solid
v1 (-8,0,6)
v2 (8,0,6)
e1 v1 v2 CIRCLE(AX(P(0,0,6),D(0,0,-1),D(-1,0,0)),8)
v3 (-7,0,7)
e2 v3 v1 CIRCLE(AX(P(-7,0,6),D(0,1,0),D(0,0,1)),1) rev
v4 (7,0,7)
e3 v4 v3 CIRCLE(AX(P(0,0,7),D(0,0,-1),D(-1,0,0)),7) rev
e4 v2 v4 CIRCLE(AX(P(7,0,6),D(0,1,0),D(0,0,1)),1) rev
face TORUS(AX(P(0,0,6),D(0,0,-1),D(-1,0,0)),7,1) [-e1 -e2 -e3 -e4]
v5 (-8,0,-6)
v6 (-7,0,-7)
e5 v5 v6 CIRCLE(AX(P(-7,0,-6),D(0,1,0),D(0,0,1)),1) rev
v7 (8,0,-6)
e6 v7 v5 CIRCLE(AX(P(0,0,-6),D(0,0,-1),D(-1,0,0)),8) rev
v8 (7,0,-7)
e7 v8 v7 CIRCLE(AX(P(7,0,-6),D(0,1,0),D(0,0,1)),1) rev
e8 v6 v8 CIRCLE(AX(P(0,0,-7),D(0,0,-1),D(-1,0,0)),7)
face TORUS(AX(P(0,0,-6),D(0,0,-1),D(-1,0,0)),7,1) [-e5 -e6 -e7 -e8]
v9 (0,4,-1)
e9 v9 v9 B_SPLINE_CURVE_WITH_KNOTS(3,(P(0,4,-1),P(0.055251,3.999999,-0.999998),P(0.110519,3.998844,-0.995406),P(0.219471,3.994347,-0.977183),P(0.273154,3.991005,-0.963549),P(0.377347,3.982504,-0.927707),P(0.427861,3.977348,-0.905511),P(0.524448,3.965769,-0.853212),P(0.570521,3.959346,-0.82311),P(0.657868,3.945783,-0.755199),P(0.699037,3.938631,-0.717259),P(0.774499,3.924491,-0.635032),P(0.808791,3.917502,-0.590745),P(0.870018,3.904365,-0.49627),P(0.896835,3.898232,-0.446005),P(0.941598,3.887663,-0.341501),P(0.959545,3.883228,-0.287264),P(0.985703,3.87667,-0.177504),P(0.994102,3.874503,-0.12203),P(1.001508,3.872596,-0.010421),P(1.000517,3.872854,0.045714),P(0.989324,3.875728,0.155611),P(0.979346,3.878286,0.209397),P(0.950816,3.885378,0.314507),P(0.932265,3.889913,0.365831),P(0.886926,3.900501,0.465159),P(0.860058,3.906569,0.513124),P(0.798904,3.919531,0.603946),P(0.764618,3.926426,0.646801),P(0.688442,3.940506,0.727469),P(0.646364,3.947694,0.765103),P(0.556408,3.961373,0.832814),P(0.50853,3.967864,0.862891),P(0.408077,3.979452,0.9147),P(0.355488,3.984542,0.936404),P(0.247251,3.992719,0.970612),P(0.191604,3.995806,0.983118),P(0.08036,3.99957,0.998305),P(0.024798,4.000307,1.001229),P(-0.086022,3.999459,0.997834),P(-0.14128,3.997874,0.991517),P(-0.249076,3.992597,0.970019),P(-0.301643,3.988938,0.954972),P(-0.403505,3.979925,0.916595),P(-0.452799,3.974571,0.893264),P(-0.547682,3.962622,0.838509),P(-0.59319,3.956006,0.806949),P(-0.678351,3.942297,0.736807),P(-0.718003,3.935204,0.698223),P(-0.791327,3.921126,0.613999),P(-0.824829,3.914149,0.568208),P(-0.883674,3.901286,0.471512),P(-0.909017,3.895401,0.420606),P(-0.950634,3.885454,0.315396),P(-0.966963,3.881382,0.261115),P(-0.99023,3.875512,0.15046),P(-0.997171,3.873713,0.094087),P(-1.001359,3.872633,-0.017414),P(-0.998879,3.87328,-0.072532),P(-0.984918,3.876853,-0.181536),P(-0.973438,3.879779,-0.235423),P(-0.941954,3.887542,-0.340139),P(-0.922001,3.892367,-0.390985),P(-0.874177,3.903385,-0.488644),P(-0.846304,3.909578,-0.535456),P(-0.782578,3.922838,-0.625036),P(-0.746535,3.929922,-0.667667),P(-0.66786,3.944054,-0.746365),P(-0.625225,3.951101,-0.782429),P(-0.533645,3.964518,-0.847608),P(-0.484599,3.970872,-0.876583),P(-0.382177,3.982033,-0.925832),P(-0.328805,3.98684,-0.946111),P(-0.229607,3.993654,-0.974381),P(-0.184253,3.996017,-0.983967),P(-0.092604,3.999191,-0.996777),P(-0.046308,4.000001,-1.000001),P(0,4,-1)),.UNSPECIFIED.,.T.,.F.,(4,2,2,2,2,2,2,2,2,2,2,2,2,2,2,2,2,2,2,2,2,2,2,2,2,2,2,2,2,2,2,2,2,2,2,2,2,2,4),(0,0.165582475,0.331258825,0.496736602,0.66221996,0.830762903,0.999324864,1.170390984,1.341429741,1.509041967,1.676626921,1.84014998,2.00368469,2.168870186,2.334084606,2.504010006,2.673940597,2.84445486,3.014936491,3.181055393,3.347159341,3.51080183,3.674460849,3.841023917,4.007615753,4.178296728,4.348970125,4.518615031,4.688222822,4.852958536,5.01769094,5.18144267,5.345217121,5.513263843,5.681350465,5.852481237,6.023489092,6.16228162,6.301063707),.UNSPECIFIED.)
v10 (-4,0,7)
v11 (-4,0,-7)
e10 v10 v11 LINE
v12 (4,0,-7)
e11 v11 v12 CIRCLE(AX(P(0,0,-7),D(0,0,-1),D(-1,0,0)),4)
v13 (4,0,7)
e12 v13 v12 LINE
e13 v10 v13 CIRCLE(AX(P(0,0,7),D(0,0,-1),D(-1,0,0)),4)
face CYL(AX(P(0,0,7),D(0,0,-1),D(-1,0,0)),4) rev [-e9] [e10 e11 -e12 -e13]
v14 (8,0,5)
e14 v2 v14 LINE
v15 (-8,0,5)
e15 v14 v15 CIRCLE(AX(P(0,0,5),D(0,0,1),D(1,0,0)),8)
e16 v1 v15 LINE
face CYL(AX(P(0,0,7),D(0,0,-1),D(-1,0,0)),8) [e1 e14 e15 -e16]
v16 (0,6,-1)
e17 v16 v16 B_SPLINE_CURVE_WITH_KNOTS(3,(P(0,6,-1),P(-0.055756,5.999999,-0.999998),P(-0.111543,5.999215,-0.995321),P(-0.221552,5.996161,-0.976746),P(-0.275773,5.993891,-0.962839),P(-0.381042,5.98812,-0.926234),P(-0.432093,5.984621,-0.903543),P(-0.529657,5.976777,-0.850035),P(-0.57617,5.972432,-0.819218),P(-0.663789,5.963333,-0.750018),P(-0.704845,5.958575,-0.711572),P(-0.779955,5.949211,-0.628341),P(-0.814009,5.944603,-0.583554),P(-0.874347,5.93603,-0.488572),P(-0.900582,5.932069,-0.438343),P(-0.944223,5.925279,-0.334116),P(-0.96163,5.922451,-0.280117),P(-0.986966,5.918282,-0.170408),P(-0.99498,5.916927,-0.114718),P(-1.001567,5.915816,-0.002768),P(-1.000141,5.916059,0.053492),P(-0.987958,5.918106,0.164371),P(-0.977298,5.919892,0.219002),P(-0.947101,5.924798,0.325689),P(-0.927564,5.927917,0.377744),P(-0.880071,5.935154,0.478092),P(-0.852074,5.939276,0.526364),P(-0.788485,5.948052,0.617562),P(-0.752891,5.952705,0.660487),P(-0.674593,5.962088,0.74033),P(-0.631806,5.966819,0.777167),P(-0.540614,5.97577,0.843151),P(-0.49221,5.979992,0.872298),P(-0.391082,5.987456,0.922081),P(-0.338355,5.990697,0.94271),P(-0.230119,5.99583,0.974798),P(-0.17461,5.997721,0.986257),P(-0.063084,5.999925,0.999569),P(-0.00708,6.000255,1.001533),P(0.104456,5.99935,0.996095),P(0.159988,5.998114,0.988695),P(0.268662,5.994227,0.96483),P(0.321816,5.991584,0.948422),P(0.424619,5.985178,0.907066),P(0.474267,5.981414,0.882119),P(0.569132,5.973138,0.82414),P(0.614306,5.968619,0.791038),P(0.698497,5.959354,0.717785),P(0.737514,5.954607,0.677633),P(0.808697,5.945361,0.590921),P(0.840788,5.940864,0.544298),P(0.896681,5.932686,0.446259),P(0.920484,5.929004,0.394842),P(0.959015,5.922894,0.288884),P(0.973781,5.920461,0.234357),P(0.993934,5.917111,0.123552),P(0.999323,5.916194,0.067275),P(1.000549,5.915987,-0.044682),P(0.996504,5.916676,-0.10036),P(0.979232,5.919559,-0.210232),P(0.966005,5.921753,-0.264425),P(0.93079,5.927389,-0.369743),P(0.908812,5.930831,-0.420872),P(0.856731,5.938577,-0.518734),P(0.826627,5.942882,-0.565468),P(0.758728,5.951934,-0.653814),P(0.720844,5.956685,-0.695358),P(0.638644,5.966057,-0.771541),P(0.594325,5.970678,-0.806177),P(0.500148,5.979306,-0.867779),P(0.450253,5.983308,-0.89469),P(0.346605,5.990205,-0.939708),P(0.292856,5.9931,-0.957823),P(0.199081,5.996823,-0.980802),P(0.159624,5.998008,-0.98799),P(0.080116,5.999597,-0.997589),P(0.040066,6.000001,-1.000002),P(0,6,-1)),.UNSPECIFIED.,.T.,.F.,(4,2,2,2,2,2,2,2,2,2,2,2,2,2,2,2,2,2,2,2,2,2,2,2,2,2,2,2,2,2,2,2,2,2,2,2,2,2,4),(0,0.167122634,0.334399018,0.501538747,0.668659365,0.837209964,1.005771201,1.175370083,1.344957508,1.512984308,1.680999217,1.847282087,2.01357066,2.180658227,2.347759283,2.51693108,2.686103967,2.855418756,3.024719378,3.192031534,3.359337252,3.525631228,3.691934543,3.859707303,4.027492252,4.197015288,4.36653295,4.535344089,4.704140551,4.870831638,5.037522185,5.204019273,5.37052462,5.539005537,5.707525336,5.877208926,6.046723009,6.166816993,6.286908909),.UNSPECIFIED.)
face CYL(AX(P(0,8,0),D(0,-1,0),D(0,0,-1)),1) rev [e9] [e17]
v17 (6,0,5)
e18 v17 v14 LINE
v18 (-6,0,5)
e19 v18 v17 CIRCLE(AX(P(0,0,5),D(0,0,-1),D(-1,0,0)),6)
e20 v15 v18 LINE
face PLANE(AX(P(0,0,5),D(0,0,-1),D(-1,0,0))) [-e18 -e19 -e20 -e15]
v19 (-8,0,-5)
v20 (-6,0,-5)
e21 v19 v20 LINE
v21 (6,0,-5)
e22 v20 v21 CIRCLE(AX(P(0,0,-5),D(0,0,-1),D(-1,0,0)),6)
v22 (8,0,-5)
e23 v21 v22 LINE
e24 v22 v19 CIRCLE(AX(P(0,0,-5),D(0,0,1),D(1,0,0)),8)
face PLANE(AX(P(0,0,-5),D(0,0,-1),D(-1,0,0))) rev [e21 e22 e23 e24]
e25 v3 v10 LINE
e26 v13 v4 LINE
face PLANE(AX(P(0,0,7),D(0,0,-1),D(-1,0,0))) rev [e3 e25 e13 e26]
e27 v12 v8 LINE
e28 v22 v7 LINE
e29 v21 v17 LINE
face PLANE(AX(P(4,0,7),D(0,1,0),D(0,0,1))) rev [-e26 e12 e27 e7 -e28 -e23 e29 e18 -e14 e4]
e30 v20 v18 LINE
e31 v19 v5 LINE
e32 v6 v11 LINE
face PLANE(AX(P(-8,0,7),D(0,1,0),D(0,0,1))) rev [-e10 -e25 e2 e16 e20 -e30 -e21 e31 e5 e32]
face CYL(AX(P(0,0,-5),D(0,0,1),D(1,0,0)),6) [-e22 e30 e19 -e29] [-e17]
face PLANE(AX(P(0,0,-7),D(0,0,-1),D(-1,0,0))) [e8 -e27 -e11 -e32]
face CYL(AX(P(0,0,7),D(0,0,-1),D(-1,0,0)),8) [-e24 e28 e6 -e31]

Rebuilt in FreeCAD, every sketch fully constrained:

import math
import FreeCAD as App
import Part
import Sketcher
from FreeCAD import Vector


def edges_at(feature, points):
    """Names of the edges that pass closest to the given points."""
    edges = feature.Shape.Edges
    near = lambda p: min(range(len(edges)), key=lambda i: edges[i].distToShape(Part.Vertex(*p))[0])
    return sorted({f"Edge{near(p) + 1}" for p in points})

doc = App.newDocument("Part")
params = doc.addObject("Spreadsheet::Sheet", "Params")
for row, (alias, value) in enumerate([
    ("sketch1_radius", "4 mm"),
    ("sketch1_radius2", "8 mm"),
    ("pad1_length", "14 mm"),
    ("sketch2_radius", "6 mm"),
    ("sketch2_radius2", "8 mm"),
    ("pocket1_length", "10 mm"),
    ("fillet_radius", "1 mm"),
    ("sketch3_diameter", "2 mm"),
], start=1):
    params.set(f"A{row}", alias)
    params.set(f"B{row}", "=" + value)
    params.setAlias(f"B{row}", alias)

body = doc.addObject("PartDesign::Body", "Body")

# Sketch on XY plane
sketch1 = body.newObject("Sketcher::SketchObject", "Sketch")
sketch1.AttachmentSupport = (doc.getObject("XY_Plane"), [""])
sketch1.MapMode = "FlatFace"
sketch1.addGeometry([
    Part.LineSegment(Vector(-8, 0, 0), Vector(-4, 0, 0)),
    Part.ArcOfCircle(Part.Circle(Vector(0, 0, 0), Vector(0, 0, 1), 4), math.radians(0), math.radians(180)),
    Part.LineSegment(Vector(4, 0, 0), Vector(8, 0, 0)),
    Part.ArcOfCircle(Part.Circle(Vector(0, 0, 0), Vector(0, 0, 1), 8), math.radians(0), math.radians(180)),
], False)
sketch1.addConstraint([
    Sketcher.Constraint("Coincident", 0, 2, 1, 2),
    Sketcher.Constraint("Coincident", 1, 1, 2, 1),
    Sketcher.Constraint("Coincident", 2, 2, 3, 1),
    Sketcher.Constraint("Coincident", 3, 2, 0, 1),
    Sketcher.Constraint("Horizontal", 0),
    Sketcher.Constraint("Horizontal", 2),
    Sketcher.Constraint("Coincident", 1, 3, -1, 1),
    Sketcher.Constraint("Coincident", 3, 3, -1, 1),
    Sketcher.Constraint("PointOnObject", 0, 2, -1),
    Sketcher.Constraint("PointOnObject", 1, 1, -1),
    Sketcher.Constraint("Radius", 1, 4.0),
    Sketcher.Constraint("Radius", 3, 8.0),
])
sketch1.setExpression("Constraints[10]", "Params.sketch1_radius")
sketch1.setExpression("Constraints[11]", "Params.sketch1_radius2")
pad1 = body.newObject("PartDesign::Pad", "Pad")
pad1.Profile = sketch1
pad1.setExpression("Length", "Params.pad1_length")
pad1.Midplane = True

# Sketch on XY plane
sketch2 = body.newObject("Sketcher::SketchObject", "Sketch001")
sketch2.AttachmentSupport = (doc.getObject("XY_Plane"), [""])
sketch2.MapMode = "FlatFace"
sketch2.addGeometry([
    Part.LineSegment(Vector(-8, 0, 0), Vector(-6, 0, 0)),
    Part.ArcOfCircle(Part.Circle(Vector(0, 0, 0), Vector(0, 0, 1), 6), math.radians(0), math.radians(180)),
    Part.LineSegment(Vector(6, 0, 0), Vector(8, 0, 0)),
    Part.ArcOfCircle(Part.Circle(Vector(0, 0, 0), Vector(0, 0, 1), 8), math.radians(0), math.radians(180)),
], False)
sketch2.addConstraint([
    Sketcher.Constraint("Coincident", 0, 2, 1, 2),
    Sketcher.Constraint("Coincident", 1, 1, 2, 1),
    Sketcher.Constraint("Coincident", 2, 2, 3, 1),
    Sketcher.Constraint("Coincident", 3, 2, 0, 1),
    Sketcher.Constraint("Horizontal", 0),
    Sketcher.Constraint("Horizontal", 2),
    Sketcher.Constraint("Coincident", 1, 3, -1, 1),
    Sketcher.Constraint("Coincident", 3, 3, -1, 1),
    Sketcher.Constraint("PointOnObject", 0, 2, -1),
    Sketcher.Constraint("PointOnObject", 1, 1, -1),
    Sketcher.Constraint("Radius", 1, 6.0),
    Sketcher.Constraint("Radius", 3, 8.0),
])
sketch2.setExpression("Constraints[10]", "Params.sketch2_radius")
sketch2.setExpression("Constraints[11]", "Params.sketch2_radius2")
pocket1 = body.newObject("PartDesign::Pocket", "Pocket")
pocket1.Profile = sketch2
pocket1.setExpression("Length", "Params.pocket1_length")
pocket1.Midplane = True
doc.recompute()

fillet = body.newObject("PartDesign::Fillet", "Fillet")
fillet.Base = (pocket1, edges_at(pocket1, [(0, 8, 7), (0, 8, -7)]))
fillet.setExpression("Radius", "Params.fillet_radius")

# Sketch on XZ plane
sketch3 = body.newObject("Sketcher::SketchObject", "Sketch002")
sketch3.AttachmentSupport = (doc.getObject("XZ_Plane"), [""])
sketch3.MapMode = "FlatFace"
sketch3.addGeometry(Part.Circle(Vector(0, 0, 0), Vector(0, 0, 1), 1), False)
sketch3.addConstraint([
    Sketcher.Constraint("Coincident", 0, 3, -1, 1),
    Sketcher.Constraint("Diameter", 0, 2.0),
])
sketch3.setExpression("Constraints[1]", "Params.sketch3_diameter")
pocket2 = body.newObject("PartDesign::Pocket", "Pocket001")
pocket2.Profile = sketch3
pocket2.Type = "ThroughAll"

doc.recompute()
